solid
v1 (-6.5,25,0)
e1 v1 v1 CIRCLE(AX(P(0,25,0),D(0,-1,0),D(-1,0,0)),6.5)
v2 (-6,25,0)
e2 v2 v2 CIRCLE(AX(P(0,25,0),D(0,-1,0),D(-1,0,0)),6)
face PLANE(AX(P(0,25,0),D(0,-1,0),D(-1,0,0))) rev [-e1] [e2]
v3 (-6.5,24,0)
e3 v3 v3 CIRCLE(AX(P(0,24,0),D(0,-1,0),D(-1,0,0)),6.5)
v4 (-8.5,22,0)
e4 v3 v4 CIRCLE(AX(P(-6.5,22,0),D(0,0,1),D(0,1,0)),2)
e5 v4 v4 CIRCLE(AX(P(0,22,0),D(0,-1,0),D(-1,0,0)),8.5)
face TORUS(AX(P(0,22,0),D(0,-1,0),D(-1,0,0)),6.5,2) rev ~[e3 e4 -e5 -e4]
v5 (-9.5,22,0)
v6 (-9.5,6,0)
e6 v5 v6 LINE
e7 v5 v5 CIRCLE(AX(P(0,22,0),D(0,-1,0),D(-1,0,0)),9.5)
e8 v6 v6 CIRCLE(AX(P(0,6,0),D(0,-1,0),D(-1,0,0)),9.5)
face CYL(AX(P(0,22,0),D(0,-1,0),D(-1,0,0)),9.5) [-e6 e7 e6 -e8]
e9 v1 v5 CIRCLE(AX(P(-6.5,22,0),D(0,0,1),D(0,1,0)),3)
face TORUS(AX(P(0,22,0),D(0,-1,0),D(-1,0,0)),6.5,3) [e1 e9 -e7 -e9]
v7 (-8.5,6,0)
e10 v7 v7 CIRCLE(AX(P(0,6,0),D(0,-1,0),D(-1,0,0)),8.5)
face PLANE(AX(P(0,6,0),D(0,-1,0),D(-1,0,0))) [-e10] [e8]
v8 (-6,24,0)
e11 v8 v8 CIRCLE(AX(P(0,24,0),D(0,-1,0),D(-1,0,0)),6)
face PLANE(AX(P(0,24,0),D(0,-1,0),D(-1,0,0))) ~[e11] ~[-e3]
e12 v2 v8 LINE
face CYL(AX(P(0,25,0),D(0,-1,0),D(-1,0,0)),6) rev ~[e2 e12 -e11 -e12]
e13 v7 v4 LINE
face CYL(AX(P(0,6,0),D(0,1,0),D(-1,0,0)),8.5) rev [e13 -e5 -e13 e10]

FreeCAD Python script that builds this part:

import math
import FreeCAD as App
import Part
import Sketcher

V = App.Vector
Q = App.Units.Quantity

doc = App.newDocument("Part")
params = doc.addObject("Spreadsheet::Sheet", "Params")
for row, (alias, value) in enumerate([
    ("sketch1_radius", "2 mm"),
    ("sketch1_radius2", "3 mm"),
    ("sketch1_width", "0.5 mm"),
    ("revolution_angle", "360 deg"),
], start=1):
    params.set(f"A{row}", alias)
    params.set(f"B{row}", "=" + value)
    params.setAlias(f"B{row}", alias)

body = doc.addObject("PartDesign::Body", "Body")

# Sketch on XY plane
sketch1 = body.newObject("Sketcher::SketchObject", "Sketch")
sketch1.AttachmentSupport = (doc.getObject("XY_Plane"), [""])
sketch1.MapMode = "FlatFace"
sketch1.addGeometry([
    Part.LineSegment(V(-9.5, 22, 0), V(-9.5, 6, 0)),  # 0
    Part.LineSegment(V(-9.5, 6, 0), V(-8.5, 6, 0)),  # 1
    Part.LineSegment(V(-8.5, 6, 0), V(-8.5, 22, 0)),  # 2
    Part.ArcOfCircle(Part.Circle(V(-6.5, 22, 0), V(0, 0, 1), 2), math.radians(90), math.radians(180)),  # 3
    Part.LineSegment(V(-6.5, 24, 0), V(-6, 24, 0)),  # 4
    Part.LineSegment(V(-6, 24, 0), V(-6, 25, 0)),  # 5
    Part.LineSegment(V(-6, 25, 0), V(-6.5, 25, 0)),  # 6
    Part.ArcOfCircle(Part.Circle(V(-6.5, 22, 0), V(0, 0, 1), 3), math.radians(90), math.radians(180)),  # 7
], False)
sketch1.addConstraint([
    Sketcher.Constraint("Coincident", 0, 2, 1, 1),
    Sketcher.Constraint("Coincident", 1, 2, 2, 1),
    Sketcher.Constraint("Tangent", 2, 2, 3, 2),
    Sketcher.Constraint("Tangent", 3, 1, 4, 1),
    Sketcher.Constraint("Coincident", 4, 2, 5, 1),
    Sketcher.Constraint("Coincident", 5, 2, 6, 1),
    Sketcher.Constraint("Tangent", 6, 2, 7, 1),
    Sketcher.Constraint("Tangent", 7, 2, 0, 1),
    Sketcher.Constraint("Vertical", 0),
    Sketcher.Constraint("Horizontal", 1),
    Sketcher.Constraint("Vertical", 2),
    Sketcher.Constraint("Horizontal", 4),
    Sketcher.Constraint("Vertical", 5),
    Sketcher.Constraint("Horizontal", 6),
    Sketcher.Constraint("Coincident", 7, 3, 3, 3),
    Sketcher.Constraint("Radius", 3, Q("2 mm")),
    Sketcher.Constraint("Radius", 7, Q("3 mm")),
    Sketcher.Constraint("DistanceY", -1, 1, 0, 2, Q("6 mm")),
    Sketcher.Constraint("DistanceX", 4, 2, -1, 1, Q("6 mm")),
    Sketcher.Constraint("DistanceY", 1, 2, 3, 1, Q("18 mm")),
    Sketcher.Constraint("DistanceX", 4, 1, 4, 2, Q("0.5 mm")),
])
sketch1.setExpression("Constraints[15]", "Params.sketch1_radius")
sketch1.setExpression("Constraints[16]", "Params.sketch1_radius2")
sketch1.setExpression("Constraints[20]", "Params.sketch1_width")
revolution = body.newObject("PartDesign::Revolution", "Revolution")
revolution.Profile = sketch1
revolution.ReferenceAxis = (sketch1, ["V_Axis"])
revolution.setExpression("Angle", "Params.revolution_angle")

doc.recompute()
